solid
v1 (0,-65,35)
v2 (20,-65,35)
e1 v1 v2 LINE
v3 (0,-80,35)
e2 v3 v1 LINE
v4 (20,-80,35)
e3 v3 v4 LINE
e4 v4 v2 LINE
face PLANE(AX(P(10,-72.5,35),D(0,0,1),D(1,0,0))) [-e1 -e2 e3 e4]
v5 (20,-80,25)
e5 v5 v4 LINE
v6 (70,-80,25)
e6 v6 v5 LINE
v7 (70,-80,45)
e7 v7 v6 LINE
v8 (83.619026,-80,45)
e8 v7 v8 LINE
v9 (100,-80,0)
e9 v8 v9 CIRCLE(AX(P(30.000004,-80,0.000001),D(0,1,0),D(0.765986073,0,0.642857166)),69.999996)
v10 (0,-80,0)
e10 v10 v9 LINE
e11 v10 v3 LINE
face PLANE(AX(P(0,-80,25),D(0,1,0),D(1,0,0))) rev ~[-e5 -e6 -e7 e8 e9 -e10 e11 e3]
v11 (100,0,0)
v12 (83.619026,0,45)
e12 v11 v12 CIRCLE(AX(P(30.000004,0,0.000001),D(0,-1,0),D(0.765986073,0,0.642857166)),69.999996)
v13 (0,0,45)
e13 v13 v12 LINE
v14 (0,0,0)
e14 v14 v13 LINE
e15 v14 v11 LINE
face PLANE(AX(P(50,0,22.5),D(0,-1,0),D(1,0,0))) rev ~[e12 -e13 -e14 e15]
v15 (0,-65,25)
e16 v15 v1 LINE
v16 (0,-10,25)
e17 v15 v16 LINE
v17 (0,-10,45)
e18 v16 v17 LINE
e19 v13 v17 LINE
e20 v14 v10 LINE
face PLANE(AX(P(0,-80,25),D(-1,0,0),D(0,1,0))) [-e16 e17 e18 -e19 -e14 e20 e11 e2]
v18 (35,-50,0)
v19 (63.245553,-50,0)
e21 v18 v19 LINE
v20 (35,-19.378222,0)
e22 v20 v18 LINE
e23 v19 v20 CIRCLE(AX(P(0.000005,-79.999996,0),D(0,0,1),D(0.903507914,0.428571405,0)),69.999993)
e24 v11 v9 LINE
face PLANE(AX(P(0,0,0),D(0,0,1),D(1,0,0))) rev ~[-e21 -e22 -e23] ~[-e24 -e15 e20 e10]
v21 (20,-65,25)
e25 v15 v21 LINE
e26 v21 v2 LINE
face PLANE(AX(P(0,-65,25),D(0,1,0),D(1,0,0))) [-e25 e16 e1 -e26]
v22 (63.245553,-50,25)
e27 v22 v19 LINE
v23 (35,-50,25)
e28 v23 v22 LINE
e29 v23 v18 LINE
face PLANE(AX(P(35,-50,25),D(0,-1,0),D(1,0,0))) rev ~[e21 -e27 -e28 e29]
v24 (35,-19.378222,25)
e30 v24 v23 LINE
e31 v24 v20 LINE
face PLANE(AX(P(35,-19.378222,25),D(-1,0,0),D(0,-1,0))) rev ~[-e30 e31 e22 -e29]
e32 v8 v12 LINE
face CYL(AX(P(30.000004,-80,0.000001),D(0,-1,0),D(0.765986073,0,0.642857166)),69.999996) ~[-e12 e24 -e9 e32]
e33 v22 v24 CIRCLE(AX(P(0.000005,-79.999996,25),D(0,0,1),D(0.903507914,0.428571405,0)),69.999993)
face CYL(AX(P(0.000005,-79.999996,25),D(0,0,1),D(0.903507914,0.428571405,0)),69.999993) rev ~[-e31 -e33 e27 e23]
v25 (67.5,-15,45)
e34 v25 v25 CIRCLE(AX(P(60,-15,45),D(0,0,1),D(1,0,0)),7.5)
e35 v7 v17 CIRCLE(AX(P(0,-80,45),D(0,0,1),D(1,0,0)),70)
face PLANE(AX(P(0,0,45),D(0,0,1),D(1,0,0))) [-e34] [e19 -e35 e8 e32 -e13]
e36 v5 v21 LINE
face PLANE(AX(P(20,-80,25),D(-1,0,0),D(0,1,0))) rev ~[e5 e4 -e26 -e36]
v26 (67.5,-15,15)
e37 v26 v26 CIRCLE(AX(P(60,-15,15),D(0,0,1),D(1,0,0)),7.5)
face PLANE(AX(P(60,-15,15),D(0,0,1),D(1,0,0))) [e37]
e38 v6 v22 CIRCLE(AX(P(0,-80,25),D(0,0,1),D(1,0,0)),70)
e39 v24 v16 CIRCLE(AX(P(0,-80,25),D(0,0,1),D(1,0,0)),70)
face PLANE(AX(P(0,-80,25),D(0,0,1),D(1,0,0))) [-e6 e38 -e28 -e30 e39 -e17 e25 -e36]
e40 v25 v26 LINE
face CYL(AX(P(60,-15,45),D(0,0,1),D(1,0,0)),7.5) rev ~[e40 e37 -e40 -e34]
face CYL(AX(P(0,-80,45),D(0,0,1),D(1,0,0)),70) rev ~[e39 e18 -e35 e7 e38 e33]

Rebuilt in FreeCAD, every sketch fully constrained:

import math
import FreeCAD as App
import Part
import Sketcher

doc = App.newDocument("Part")
body = doc.addObject("PartDesign::Body", "Body")

sketch1 = body.newObject("Sketcher::SketchObject", "Sketch")
sketch1.AttachmentSupport = (doc.getObject("XZ_Plane"), [""])
sketch1.MapMode = "FlatFace"
sketch1.addGeometry([
    Part.LineSegment(App.Vector(0, 45, 0), App.Vector(0, 0, 0)),
    Part.LineSegment(App.Vector(0, 0, 0), App.Vector(100, 0, 0)),
    Part.LineSegment(App.Vector(100, 0, 0), App.Vector(100, 45, 0)),
    Part.LineSegment(App.Vector(100, 45, 0), App.Vector(0, 45, 0)),
], False)
sketch1.addConstraint([
    Sketcher.Constraint("Coincident", 0, 2, 1, 1),
    Sketcher.Constraint("Coincident", 1, 2, 2, 1),
    Sketcher.Constraint("Coincident", 2, 2, 3, 1),
    Sketcher.Constraint("Coincident", 3, 2, 0, 1),
    Sketcher.Constraint("Vertical", 0),
    Sketcher.Constraint("Horizontal", 1),
    Sketcher.Constraint("Vertical", 2),
    Sketcher.Constraint("Horizontal", 3),
    Sketcher.Constraint("Coincident", 0, 2, -1, 1),
    Sketcher.Constraint("DistanceX", 1, 1, 1, 2, 100.0),
    Sketcher.Constraint("DistanceY", 0, 2, 0, 1, 45.0),
])
pad1 = body.newObject("PartDesign::Pad", "Pad")
pad1.Profile = sketch1
pad1.Length = 80

sketch2 = body.newObject("Sketcher::SketchObject", "Sketch001")
sketch2.AttachmentSupport = (doc.getObject("XY_Plane"), [""])
sketch2.MapMode = "FlatFace"
sketch2.AttachmentOffset = App.Placement(App.Vector(0, 0, 45), App.Rotation())
sketch2.addGeometry(Part.Circle(App.Vector(0, -80, 0), App.Vector(0, 0, 1), 70), False)
sketch2.addConstraint([
    Sketcher.Constraint("PointOnObject", 0, 3, -2),
    Sketcher.Constraint("Diameter", 0, 140.0),
    Sketcher.Constraint("DistanceY", 0, 3, -1, 1, 80.0),
])
pocket1 = body.newObject("PartDesign::Pocket", "Pocket")
pocket1.Profile = sketch2
pocket1.Length = 20

sketch3 = body.newObject("Sketcher::SketchObject", "Sketch002")
sketch3.AttachmentSupport = (doc.getObject("XY_Plane"), [""])
sketch3.MapMode = "FlatFace"
sketch3.AttachmentOffset = App.Placement(App.Vector(0, 0, 25), App.Rotation())
sketch3.addGeometry([
    Part.ArcOfCircle(Part.Circle(App.Vector(0.000005, -79.999996, 0), App.Vector(0, 0, 1), 69.999993), math.radians(25.376932), math.radians(60.000002)),
    Part.LineSegment(App.Vector(35, -19.378222, 0), App.Vector(35, -50, 0)),
    Part.LineSegment(App.Vector(35, -50, 0), App.Vector(63.245553, -50, 0)),
], False)
sketch3.addConstraint([
    Sketcher.Constraint("Coincident", 0, 2, 1, 1),
    Sketcher.Constraint("Coincident", 1, 2, 2, 1),
    Sketcher.Constraint("Coincident", 2, 2, 0, 1),
    Sketcher.Constraint("Vertical", 1),
    Sketcher.Constraint("Horizontal", 2),
    Sketcher.Constraint("DistanceX", -1, 1, 0, 2, 35.0),
    Sketcher.Constraint("DistanceY", 1, 2, -1, 1, 50.0),
    Sketcher.Constraint("Radius", 0, 69.999993),
    Sketcher.Constraint("DistanceX", 2, 1, 2, 2, 28.245553),
    Sketcher.Constraint("DistanceY", 1, 2, 1, 1, 30.621778),
])
pocket2 = body.newObject("PartDesign::Pocket", "Pocket001")
pocket2.Profile = sketch3
pocket2.Type = "ThroughAll"

sketch4 = body.newObject("Sketcher::SketchObject", "Sketch003")
sketch4.AttachmentSupport = (doc.getObject("XY_Plane"), [""])
sketch4.MapMode = "FlatFace"
sketch4.AttachmentOffset = App.Placement(App.Vector(0, 0, 25), App.Rotation())
sketch4.addGeometry([
    Part.LineSegment(App.Vector(0, -65, 0), App.Vector(0, -80, 0)),
    Part.LineSegment(App.Vector(0, -80, 0), App.Vector(20, -80, 0)),
    Part.LineSegment(App.Vector(20, -80, 0), App.Vector(20, -65, 0)),
    Part.LineSegment(App.Vector(20, -65, 0), App.Vector(0, -65, 0)),
], False)
sketch4.addConstraint([
    Sketcher.Constraint("Coincident", 0, 2, 1, 1),
    Sketcher.Constraint("Coincident", 1, 2, 2, 1),
    Sketcher.Constraint("Coincident", 2, 2, 3, 1),
    Sketcher.Constraint("Coincident", 3, 2, 0, 1),
    Sketcher.Constraint("Vertical", 0),
    Sketcher.Constraint("Horizontal", 1),
    Sketcher.Constraint("Vertical", 2),
    Sketcher.Constraint("Horizontal", 3),
    Sketcher.Constraint("PointOnObject", 0, 2, -2),
    Sketcher.Constraint("DistanceX", 1, 1, 1, 2, 20.0),
    Sketcher.Constraint("DistanceY", 0, 2, 0, 1, 15.0),
    Sketcher.Constraint("DistanceY", 0, 2, -1, 1, 80.0),
])
pad2 = body.newObject("PartDesign::Pad", "Pad001")
pad2.Profile = sketch4
pad2.Length = 10

sketch5 = body.newObject("Sketcher::SketchObject", "Sketch004")
sketch5.AttachmentSupport = (doc.getObject("XY_Plane"), [""])
sketch5.MapMode = "FlatFace"
sketch5.AttachmentOffset = App.Placement(App.Vector(0, 0, 45), App.Rotation())
sketch5.addGeometry(Part.Circle(App.Vector(60, -15, 0), App.Vector(0, 0, 1), 7.5), False)
sketch5.addConstraint([
    Sketcher.Constraint("Diameter", 0, 15.0),
    Sketcher.Constraint("DistanceX", -1, 1, 0, 3, 60.0),
    Sketcher.Constraint("DistanceY", 0, 3, -1, 1, 15.0),
])
pocket3 = body.newObject("PartDesign::Pocket", "Pocket002")
pocket3.Profile = sketch5
pocket3.Length = 30

sketch6 = body.newObject("Sketcher::SketchObject", "Sketch005")
sketch6.AttachmentSupport = (doc.getObject("XZ_Plane"), [""])
sketch6.MapMode = "FlatFace"
sketch6.AttachmentOffset = App.Placement(App.Vector(0, 0, 80), App.Rotation())
sketch6.addGeometry([
    Part.ArcOfCircle(Part.Circle(App.Vector(30.000004, 0.000001, 0), App.Vector(0, 0, 1), 69.999996), math.radians(-0.000001), math.radians(40.005203)),
    Part.LineSegment(App.Vector(100, 0, 0), App.Vector(100, 45, 0)),
    Part.LineSegment(App.Vector(100, 45, 0), App.Vector(83.619026, 45, 0)),
], False)
sketch6.addConstraint([
    Sketcher.Constraint("Tangent", 0, 1, 1, 1),
    Sketcher.Constraint("Coincident", 1, 2, 2, 1),
    Sketcher.Constraint("Coincident", 2, 2, 0, 2),
    Sketcher.Constraint("Vertical", 1),
    Sketcher.Constraint("Horizontal", 2),
    Sketcher.Constraint("PointOnObject", 0, 3, -1),
    Sketcher.Constraint("DistanceY", 1, 1, 1, 2, 45.0),
    Sketcher.Constraint("DistanceX", -1, 1, 0, 1, 100.0),
    Sketcher.Constraint("Radius", 0, 69.999996),
])
pocket4 = body.newObject("PartDesign::Pocket", "Pocket003")
pocket4.Profile = sketch6
pocket4.Type = "ThroughAll"

doc.recompute()
